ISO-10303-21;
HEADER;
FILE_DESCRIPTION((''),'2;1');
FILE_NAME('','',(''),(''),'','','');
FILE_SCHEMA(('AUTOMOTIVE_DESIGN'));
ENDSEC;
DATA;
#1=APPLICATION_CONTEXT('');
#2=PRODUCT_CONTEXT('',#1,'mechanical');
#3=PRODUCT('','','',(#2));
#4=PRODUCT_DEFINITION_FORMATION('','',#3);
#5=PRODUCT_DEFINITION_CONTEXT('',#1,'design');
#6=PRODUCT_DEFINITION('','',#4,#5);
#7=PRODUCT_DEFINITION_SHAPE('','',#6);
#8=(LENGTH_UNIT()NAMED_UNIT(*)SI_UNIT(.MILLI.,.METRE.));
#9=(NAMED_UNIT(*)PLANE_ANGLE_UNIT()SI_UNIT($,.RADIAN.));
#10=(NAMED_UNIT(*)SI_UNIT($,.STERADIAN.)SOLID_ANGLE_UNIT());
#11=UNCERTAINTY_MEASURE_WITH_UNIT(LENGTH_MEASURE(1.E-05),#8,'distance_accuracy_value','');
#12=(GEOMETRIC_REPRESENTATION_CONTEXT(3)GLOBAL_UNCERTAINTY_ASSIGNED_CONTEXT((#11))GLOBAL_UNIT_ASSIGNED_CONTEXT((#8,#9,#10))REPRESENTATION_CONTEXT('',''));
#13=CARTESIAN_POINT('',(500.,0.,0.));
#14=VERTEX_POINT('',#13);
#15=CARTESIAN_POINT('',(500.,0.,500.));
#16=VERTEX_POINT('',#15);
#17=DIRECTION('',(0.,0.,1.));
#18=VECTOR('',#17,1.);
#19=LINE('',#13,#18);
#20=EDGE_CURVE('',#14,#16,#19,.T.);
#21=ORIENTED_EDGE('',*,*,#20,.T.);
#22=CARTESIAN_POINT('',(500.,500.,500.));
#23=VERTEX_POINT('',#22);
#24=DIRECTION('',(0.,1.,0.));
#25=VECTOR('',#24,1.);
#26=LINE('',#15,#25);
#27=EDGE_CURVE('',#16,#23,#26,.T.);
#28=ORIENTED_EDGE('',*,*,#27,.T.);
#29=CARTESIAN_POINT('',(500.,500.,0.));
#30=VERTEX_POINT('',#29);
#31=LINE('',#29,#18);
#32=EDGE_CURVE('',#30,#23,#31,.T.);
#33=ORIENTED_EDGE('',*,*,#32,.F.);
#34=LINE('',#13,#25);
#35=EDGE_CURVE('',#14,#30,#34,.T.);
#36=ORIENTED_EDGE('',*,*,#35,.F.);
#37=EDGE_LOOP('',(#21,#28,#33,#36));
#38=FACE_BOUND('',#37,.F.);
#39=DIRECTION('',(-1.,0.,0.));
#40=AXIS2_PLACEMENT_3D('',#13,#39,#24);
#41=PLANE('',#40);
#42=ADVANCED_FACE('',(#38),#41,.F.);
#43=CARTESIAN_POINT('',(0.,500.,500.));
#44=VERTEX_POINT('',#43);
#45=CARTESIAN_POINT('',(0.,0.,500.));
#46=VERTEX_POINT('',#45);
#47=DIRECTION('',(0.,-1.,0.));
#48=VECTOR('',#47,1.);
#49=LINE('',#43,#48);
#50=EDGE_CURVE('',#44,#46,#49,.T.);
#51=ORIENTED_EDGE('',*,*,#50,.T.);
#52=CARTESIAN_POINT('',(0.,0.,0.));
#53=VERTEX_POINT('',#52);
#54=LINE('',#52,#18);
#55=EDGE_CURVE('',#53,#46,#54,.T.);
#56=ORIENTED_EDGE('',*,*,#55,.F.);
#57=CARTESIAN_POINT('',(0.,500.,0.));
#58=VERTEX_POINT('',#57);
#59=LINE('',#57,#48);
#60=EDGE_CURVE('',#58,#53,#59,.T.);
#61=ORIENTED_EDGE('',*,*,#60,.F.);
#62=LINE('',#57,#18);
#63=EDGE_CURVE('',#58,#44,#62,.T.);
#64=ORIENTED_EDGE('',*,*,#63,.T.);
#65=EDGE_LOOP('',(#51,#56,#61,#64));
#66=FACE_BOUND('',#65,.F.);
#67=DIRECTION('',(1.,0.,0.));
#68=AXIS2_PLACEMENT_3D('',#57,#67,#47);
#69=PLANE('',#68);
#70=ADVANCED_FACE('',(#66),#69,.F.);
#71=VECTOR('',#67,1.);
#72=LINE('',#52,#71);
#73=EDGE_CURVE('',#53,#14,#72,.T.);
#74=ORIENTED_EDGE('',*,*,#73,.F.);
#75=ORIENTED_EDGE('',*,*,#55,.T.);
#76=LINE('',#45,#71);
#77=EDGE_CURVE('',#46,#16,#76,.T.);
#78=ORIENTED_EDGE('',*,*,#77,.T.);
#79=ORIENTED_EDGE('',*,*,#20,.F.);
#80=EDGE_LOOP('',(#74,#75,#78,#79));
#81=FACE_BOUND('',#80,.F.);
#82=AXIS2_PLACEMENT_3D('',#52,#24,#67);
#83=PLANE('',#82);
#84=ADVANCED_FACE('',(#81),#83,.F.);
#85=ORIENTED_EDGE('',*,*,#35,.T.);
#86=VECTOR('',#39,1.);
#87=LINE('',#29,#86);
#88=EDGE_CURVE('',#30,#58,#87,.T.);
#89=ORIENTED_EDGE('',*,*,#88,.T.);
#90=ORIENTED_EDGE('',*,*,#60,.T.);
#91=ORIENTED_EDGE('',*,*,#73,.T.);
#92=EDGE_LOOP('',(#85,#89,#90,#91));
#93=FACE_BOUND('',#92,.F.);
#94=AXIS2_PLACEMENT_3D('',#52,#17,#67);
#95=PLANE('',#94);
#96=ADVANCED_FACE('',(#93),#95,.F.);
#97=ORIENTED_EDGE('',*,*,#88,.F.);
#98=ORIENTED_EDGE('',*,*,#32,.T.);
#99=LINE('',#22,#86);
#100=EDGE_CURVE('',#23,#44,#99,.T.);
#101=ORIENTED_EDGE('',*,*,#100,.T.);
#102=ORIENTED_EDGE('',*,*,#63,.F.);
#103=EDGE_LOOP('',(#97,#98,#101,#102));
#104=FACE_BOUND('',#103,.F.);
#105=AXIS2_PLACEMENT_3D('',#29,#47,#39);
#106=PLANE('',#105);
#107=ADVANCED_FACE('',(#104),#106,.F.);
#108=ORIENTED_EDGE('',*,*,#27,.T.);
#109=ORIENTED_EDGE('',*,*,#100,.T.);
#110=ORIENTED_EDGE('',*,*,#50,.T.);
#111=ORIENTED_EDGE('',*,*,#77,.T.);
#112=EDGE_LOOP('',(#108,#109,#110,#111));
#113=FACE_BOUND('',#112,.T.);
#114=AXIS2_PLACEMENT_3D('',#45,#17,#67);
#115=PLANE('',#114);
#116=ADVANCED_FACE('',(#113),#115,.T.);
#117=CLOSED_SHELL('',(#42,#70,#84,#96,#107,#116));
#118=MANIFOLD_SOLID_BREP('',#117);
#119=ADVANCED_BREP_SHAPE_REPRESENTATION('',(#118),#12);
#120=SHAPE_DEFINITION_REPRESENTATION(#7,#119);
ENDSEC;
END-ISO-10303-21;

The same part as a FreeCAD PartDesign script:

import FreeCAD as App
import Part
import Sketcher
from FreeCAD import Vector

doc = App.newDocument("Part")
body = doc.addObject("PartDesign::Body", "Body")

# Sketch on XY plane
sketch1 = body.newObject("Sketcher::SketchObject", "Sketch")
sketch1.AttachmentSupport = (doc.getObject("XY_Plane"), [""])
sketch1.MapMode = "FlatFace"
sketch1.addGeometry([
    Part.LineSegment(Vector(0, 500, 0), Vector(0, 0, 0)),
    Part.LineSegment(Vector(0, 0, 0), Vector(500, 0, 0)),
    Part.LineSegment(Vector(500, 0, 0), Vector(500, 500, 0)),
    Part.LineSegment(Vector(500, 500, 0), Vector(0, 500, 0)),
], False)
sketch1.addConstraint([
    Sketcher.Constraint("Coincident", 0, 2, 1, 1),
    Sketcher.Constraint("Coincident", 1, 2, 2, 1),
    Sketcher.Constraint("Coincident", 2, 2, 3, 1),
    Sketcher.Constraint("Coincident", 3, 2, 0, 1),
    Sketcher.Constraint("Vertical", 0),
    Sketcher.Constraint("Horizontal", 1),
    Sketcher.Constraint("Vertical", 2),
    Sketcher.Constraint("Horizontal", 3),
    Sketcher.Constraint("Coincident", 0, 2, -1, 1),
    Sketcher.Constraint("Equal", 3, 0),
    Sketcher.Constraint("DistanceX", 1, 1, 1, 2, 500.0),
])
pad1 = body.newObject("PartDesign::Pad", "Pad")
pad1.Profile = sketch1
pad1.Length = 500

doc.recompute()
